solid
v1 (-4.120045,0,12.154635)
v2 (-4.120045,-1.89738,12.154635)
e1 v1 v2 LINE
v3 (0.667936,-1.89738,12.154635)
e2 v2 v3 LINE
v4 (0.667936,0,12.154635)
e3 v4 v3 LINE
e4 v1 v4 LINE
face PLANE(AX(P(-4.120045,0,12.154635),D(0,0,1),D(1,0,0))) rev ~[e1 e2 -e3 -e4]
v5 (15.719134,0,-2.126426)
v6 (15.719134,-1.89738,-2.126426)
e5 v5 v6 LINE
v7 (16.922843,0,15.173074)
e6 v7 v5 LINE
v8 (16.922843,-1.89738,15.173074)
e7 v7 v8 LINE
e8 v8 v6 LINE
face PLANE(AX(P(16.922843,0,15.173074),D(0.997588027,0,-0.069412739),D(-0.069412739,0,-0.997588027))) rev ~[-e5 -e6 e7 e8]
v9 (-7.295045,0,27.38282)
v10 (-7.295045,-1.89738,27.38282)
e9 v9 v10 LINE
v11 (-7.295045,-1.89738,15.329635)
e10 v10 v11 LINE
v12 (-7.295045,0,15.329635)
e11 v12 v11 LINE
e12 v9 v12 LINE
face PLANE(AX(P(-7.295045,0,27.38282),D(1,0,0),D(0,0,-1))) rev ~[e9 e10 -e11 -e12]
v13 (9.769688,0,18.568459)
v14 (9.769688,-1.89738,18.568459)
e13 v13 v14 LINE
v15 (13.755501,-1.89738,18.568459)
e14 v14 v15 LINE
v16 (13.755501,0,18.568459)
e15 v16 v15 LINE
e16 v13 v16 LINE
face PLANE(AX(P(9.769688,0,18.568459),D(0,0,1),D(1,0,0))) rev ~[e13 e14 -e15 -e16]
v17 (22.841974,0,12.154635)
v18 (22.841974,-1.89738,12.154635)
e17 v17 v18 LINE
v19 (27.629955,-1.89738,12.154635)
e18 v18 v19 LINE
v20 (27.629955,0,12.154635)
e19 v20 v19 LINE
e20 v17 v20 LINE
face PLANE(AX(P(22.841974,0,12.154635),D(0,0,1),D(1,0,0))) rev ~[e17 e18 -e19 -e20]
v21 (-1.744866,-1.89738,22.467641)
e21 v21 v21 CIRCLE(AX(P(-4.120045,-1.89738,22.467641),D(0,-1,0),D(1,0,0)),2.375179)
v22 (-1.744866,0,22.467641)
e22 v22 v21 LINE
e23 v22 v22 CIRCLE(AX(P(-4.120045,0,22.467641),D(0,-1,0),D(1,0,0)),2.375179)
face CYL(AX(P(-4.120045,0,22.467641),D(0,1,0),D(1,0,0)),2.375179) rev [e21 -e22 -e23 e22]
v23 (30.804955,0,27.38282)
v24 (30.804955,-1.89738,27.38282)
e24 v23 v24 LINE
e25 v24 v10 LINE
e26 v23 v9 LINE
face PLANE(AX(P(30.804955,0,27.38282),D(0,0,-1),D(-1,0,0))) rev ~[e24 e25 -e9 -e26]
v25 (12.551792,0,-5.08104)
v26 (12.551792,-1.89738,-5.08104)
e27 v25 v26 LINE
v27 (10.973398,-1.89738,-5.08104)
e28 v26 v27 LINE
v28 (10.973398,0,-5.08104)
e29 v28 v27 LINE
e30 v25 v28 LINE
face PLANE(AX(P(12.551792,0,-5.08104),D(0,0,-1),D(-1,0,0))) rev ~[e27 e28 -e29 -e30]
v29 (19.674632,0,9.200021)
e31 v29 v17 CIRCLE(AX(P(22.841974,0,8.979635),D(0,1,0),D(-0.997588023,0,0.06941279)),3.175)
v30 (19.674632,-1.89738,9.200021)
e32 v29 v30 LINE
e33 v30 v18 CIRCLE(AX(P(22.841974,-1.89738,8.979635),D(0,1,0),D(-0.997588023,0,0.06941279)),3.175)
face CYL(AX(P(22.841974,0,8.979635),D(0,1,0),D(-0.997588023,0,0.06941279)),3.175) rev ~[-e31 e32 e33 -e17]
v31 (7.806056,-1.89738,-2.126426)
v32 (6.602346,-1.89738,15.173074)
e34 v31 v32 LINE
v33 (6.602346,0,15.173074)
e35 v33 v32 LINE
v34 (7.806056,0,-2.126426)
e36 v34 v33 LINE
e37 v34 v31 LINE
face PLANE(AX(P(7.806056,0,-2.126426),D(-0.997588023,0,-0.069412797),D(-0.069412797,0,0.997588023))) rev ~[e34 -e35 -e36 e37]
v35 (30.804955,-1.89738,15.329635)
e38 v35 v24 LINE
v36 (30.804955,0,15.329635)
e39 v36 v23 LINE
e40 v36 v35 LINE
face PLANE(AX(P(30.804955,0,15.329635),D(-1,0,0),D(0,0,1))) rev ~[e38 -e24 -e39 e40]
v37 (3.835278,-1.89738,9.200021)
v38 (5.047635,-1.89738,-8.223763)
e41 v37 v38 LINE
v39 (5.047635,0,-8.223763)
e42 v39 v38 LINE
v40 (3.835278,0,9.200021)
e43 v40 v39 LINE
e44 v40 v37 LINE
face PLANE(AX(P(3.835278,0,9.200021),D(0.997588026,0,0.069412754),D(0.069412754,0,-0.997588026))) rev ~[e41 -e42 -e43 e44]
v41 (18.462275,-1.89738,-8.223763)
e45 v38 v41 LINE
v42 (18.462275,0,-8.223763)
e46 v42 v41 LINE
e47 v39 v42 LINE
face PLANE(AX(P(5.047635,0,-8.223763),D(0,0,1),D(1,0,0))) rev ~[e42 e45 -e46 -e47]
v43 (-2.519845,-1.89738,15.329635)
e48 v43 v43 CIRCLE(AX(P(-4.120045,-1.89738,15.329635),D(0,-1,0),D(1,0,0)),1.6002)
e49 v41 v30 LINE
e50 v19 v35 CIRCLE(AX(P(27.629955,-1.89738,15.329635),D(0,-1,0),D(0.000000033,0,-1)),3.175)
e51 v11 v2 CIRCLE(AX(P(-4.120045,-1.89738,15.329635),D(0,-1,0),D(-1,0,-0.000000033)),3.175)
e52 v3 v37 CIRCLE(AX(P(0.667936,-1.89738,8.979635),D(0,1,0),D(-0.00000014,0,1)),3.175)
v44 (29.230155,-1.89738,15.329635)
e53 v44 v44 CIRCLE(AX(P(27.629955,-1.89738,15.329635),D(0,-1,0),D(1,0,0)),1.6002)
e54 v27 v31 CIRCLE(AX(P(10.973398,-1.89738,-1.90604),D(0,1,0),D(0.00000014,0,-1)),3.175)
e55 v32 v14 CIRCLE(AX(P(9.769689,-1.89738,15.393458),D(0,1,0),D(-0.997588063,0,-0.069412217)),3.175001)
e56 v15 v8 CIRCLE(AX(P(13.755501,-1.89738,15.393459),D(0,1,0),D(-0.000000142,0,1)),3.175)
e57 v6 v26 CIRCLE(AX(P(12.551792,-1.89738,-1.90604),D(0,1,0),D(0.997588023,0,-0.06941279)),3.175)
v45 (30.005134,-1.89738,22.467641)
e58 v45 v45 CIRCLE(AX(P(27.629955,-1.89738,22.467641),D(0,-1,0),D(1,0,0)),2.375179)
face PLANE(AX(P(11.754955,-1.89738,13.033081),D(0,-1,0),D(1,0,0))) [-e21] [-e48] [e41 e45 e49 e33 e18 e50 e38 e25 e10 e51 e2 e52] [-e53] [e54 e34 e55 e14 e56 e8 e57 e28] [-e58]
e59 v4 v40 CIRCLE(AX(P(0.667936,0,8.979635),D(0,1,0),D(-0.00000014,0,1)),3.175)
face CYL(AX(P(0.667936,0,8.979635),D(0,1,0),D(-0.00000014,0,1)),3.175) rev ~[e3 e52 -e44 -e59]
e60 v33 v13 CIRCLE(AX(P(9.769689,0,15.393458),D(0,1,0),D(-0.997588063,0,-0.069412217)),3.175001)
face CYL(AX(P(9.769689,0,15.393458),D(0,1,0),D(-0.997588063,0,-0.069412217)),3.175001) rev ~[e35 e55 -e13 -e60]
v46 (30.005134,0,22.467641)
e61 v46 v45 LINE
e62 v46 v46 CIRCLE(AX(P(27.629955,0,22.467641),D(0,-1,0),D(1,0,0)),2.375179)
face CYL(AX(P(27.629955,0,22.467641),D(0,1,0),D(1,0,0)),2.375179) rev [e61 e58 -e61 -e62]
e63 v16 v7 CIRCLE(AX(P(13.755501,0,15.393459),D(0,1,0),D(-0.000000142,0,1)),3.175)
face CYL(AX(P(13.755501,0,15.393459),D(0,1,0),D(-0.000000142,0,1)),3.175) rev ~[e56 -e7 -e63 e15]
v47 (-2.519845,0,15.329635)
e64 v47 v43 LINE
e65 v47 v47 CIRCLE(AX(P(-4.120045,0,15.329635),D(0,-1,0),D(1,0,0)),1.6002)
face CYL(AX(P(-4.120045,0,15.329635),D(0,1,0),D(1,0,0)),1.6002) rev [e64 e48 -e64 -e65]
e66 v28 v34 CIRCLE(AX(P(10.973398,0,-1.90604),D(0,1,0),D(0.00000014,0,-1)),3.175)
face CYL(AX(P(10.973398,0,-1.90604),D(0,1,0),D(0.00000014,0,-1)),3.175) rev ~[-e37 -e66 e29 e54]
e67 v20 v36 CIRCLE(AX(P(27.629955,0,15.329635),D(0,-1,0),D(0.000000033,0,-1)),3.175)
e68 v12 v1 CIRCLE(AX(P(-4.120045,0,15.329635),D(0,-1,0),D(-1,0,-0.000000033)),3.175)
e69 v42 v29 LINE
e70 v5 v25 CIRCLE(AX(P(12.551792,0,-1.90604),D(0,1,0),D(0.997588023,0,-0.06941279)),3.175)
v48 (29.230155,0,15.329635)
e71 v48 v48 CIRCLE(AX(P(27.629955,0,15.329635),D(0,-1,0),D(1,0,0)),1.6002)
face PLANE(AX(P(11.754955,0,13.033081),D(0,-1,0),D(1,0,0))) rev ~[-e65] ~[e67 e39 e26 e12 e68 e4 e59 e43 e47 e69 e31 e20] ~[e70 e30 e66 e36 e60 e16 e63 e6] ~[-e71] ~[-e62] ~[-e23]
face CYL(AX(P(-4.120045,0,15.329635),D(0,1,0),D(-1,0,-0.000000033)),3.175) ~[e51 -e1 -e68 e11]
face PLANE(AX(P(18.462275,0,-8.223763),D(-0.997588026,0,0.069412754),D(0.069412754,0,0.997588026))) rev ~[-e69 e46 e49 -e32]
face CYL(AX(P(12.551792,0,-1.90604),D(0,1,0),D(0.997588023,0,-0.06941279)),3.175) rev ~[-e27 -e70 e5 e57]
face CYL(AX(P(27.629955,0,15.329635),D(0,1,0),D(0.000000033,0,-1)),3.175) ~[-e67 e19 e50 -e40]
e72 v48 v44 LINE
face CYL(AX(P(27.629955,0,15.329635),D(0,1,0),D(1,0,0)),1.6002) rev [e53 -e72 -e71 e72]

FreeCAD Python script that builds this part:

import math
import FreeCAD as App
import Part
import Sketcher
from FreeCAD import Vector
Q = App.Units.Quantity

doc = App.newDocument("Part")
body = doc.addObject("PartDesign::Body", "Body")

sketch1 = body.newObject("Sketcher::SketchObject", "Sketch")
sketch1.AttachmentSupport = (doc.getObject("XZ_Plane"), [""])
sketch1.MapMode = "FlatFace"
sketch1.addGeometry([
    Part.LineSegment(Vector(30.8, 27.4, 0), Vector(-7.3, 27.4, 0)),
    Part.LineSegment(Vector(-7.3, 27.4, 0), Vector(-7.3, 15.3, 0)),
    Part.ArcOfCircle(Part.Circle(Vector(-4.1, 15.3, 0), Vector(0, 0, 1), 3.2), math.radians(-180), math.radians(-90)),
    Part.LineSegment(Vector(-4.1, 12.2, 0), Vector(0.7, 12.2, 0)),
    Part.ArcOfCircle(Part.Circle(Vector(0.7, 9, 0), Vector(0, 0, 1), 3.2), math.radians(4), math.radians(90)),
    Part.LineSegment(Vector(3.8, 9.2, 0), Vector(5, -8.2, 0)),
    Part.LineSegment(Vector(5, -8.2, 0), Vector(18.5, -8.2, 0)),
    Part.LineSegment(Vector(18.5, -8.2, 0), Vector(19.7, 9.2, 0)),
    Part.ArcOfCircle(Part.Circle(Vector(22.8, 9, 0), Vector(0, 0, 1), 3.2), math.radians(90), math.radians(176)),
    Part.LineSegment(Vector(22.8, 12.2, 0), Vector(27.6, 12.2, 0)),
    Part.ArcOfCircle(Part.Circle(Vector(27.6, 15.3, 0), Vector(0, 0, 1), 3.2), math.radians(-90), math.radians(0)),
    Part.LineSegment(Vector(30.8, 15.3, 0), Vector(30.8, 27.4, 0)),
    Part.LineSegment(Vector(12.6, -5.1, 0), Vector(11, -5.1, 0)),
    Part.ArcOfCircle(Part.Circle(Vector(11, -1.9, 0), Vector(0, 0, 1), 3.2), math.radians(-176), math.radians(-90)),
    Part.LineSegment(Vector(7.8, -2.1, 0), Vector(6.6, 15.2, 0)),
    Part.ArcOfCircle(Part.Circle(Vector(9.8, 15.4, 0), Vector(0, 0, 1), 3.2), math.radians(90), math.radians(184)),
    Part.LineSegment(Vector(9.8, 18.6, 0), Vector(13.8, 18.6, 0)),
    Part.ArcOfCircle(Part.Circle(Vector(13.8, 15.4, 0), Vector(0, 0, 1), 3.2), math.radians(-4), math.radians(90)),
    Part.LineSegment(Vector(16.9, 15.2, 0), Vector(15.7, -2.1, 0)),
    Part.ArcOfCircle(Part.Circle(Vector(12.6, -1.9, 0), Vector(0, 0, 1), 3.2), math.radians(-90), math.radians(-4)),
    Part.Circle(Vector(-4.1, 15.3, 0), Vector(0, 0, 1), 1.6),
    Part.Circle(Vector(-4.1, 22.5, 0), Vector(0, 0, 1), 2.4),
    Part.Circle(Vector(27.6, 15.3, 0), Vector(0, 0, 1), 1.6),
    Part.Circle(Vector(27.6, 22.5, 0), Vector(0, 0, 1), 2.4),
], False)
sketch1.addConstraint([
    Sketcher.Constraint("Coincident", 0, 2, 1, 1),
    Sketcher.Constraint("Tangent", 1, 2, 2, 1),
    Sketcher.Constraint("Tangent", 2, 2, 3, 1),
    Sketcher.Constraint("Tangent", 3, 2, 4, 2),
    Sketcher.Constraint("Tangent", 4, 1, 5, 1),
    Sketcher.Constraint("Coincident", 5, 2, 6, 1),
    Sketcher.Constraint("Coincident", 6, 2, 7, 1),
    Sketcher.Constraint("Tangent", 7, 2, 8, 2),
    Sketcher.Constraint("Tangent", 8, 1, 9, 1),
    Sketcher.Constraint("Tangent", 9, 2, 10, 1),
    Sketcher.Constraint("Tangent", 10, 2, 11, 1),
    Sketcher.Constraint("Coincident", 11, 2, 0, 1),
    Sketcher.Constraint("Tangent", 12, 2, 13, 2),
    Sketcher.Constraint("Tangent", 13, 1, 14, 1),
    Sketcher.Constraint("Tangent", 14, 2, 15, 2),
    Sketcher.Constraint("Tangent", 15, 1, 16, 1),
    Sketcher.Constraint("Tangent", 16, 2, 17, 2),
    Sketcher.Constraint("Tangent", 17, 1, 18, 1),
    Sketcher.Constraint("Tangent", 18, 2, 19, 2),
    Sketcher.Constraint("Tangent", 19, 1, 12, 1),
    Sketcher.Constraint("Horizontal", 0),
    Sketcher.Constraint("Vertical", 1),
    Sketcher.Constraint("Horizontal", 3),
    Sketcher.Constraint("Horizontal", 6),
    Sketcher.Constraint("Horizontal", 9),
    Sketcher.Constraint("Vertical", 11),
    Sketcher.Constraint("Horizontal", 12),
    Sketcher.Constraint("Horizontal", 16),
    Sketcher.Constraint("Coincident", 20, 3, 2, 3),
    Sketcher.Constraint("Coincident", 22, 3, 10, 3),
    Sketcher.Constraint("Equal", 2, 4),
    Sketcher.Constraint("Equal", 4, 8),
    Sketcher.Constraint("Equal", 8, 10),
    Sketcher.Constraint("Equal", 10, 13),
    Sketcher.Constraint("Equal", 13, 15),
    Sketcher.Constraint("Equal", 15, 17),
    Sketcher.Constraint("Equal", 17, 19),
    Sketcher.Constraint("Equal", 20, 22),
    Sketcher.Constraint("Equal", 21, 23),
    Sketcher.Constraint("Parallel", 5, 14),
    Sketcher.Constraint("Parallel", 7, 18),
    Sketcher.Constraint("Horizontal", 4, 3, 8, 3),
    Sketcher.Constraint("Horizontal", 21, 3, 23, 3),
    Sketcher.Constraint("Horizontal", 4, 1, 7, 2),
    Sketcher.Constraint("Vertical", 20, 3, 21, 3),
    Sketcher.Constraint("Vertical", 22, 3, 23, 3),
    Sketcher.Constraint("Equal", 3, 9),
    Sketcher.Constraint("Diameter", 20, Q("0.126 in")),
    Sketcher.Constraint("DistanceX", 0, 2, 0, 1, Q("1.5 in")),
    Sketcher.Constraint("Radius", 2, Q("0.125 in")),
    Sketcher.Constraint("Diameter", 21, Q("4.750358 mm")),
    Sketcher.Constraint("DistanceX", 3, 1, 3, 2, Q("4.787981 mm")),
    Sketcher.Constraint("DistanceX", 6, 1, 6, 2, Q("13.41464 mm")),
    Sketcher.Constraint("DistanceX", -1, 1, 17, 3, Q("13.755501 mm")),
    Sketcher.Constraint("DistanceY", 13, 3, 15, 3, Q("17.299498 mm")),
    Sketcher.Constraint("DistanceY", 5, 2, 4, 3, Q("17.203398 mm")),
    Sketcher.Constraint("DistanceX", 12, 2, 12, 1, Q("1.578394 mm")),
    Sketcher.Constraint("DistanceY", 1, 2, 1, 1, Q("12.053185 mm")),
    Sketcher.Constraint("DistanceY", 13, 3, -1, 1, Q("1.90604 mm")),
    Sketcher.Constraint("DistanceY", -1, 1, 21, 3, Q("22.467641 mm")),
    Sketcher.Constraint("DistanceY", -1, 1, 0, 2, Q("27.38282 mm")),
    Sketcher.Constraint("DistanceX", -1, 1, 7, 2, Q("19.674632 mm")),
])
pad1 = body.newObject("PartDesign::Pad", "Pad")
pad1.Profile = sketch1
pad1.Length = Q("0.0747 in")

doc.recompute()
